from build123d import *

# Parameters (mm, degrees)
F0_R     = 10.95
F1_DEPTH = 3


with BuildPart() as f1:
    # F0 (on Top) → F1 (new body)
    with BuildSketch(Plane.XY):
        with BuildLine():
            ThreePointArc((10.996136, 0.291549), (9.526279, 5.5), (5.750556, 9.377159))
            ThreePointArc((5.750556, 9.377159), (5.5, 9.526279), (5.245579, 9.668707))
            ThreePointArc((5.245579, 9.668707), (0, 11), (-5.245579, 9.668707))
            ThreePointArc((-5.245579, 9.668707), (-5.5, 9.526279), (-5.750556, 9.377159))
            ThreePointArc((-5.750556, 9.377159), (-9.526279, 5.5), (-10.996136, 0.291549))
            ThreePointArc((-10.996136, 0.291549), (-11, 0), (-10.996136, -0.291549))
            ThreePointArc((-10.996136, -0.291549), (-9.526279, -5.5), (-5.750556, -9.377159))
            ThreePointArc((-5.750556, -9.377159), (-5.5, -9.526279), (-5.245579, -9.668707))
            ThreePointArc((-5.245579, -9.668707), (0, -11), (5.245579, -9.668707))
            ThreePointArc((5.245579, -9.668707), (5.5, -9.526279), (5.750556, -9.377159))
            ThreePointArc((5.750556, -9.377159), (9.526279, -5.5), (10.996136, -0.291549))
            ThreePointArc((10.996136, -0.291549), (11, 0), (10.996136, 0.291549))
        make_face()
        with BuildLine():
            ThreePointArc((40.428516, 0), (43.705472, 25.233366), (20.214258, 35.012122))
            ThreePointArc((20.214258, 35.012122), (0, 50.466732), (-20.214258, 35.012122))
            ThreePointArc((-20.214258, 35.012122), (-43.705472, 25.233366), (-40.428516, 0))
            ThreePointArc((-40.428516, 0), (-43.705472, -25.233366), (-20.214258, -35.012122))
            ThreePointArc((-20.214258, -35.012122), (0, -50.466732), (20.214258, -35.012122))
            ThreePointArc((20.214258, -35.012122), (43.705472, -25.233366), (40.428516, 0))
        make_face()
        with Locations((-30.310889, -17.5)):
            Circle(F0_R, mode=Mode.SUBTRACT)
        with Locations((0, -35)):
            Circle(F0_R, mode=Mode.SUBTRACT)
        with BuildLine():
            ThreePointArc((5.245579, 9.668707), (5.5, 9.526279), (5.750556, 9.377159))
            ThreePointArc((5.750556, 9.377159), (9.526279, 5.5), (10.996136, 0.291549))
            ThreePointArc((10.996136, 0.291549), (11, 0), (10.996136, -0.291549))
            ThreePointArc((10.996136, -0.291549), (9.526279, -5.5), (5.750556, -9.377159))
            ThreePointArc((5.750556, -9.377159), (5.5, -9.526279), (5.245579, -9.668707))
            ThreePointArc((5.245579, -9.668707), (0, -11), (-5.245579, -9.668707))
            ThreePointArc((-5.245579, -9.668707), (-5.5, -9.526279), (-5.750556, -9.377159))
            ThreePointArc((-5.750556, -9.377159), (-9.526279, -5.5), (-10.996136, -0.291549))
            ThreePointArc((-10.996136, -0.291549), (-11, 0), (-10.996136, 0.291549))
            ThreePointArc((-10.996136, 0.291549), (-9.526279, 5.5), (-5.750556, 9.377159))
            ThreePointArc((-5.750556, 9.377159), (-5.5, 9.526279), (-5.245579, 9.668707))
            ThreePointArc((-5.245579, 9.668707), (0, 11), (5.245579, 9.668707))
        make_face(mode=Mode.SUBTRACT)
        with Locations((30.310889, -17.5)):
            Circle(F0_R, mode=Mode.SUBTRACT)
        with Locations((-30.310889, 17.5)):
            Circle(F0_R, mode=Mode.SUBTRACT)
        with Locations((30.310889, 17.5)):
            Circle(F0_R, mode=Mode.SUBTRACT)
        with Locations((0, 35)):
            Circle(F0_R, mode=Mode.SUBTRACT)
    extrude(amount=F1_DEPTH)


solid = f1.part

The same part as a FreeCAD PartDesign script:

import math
import FreeCAD as App
import Part
import Sketcher

doc = App.newDocument("Part")
body = doc.addObject("PartDesign::Body", "Body")

# Sketch on XY plane
sketch1 = body.newObject("Sketcher::SketchObject", "Sketch")
sketch1.AttachmentSupport = (doc.getObject("XY_Plane"), [""])
sketch1.MapMode = "FlatFace"
sketch1.addGeometry(Part.ArcOfCircle(Part.Circle(App.Vector(25.564676, 14.759773, 0), App.Vector(0, 0, 1), 20.947187), math.radians(-44.798722), math.radians(104.798722)), False)
sketch1.addGeometry(Part.ArcOfCircle(Part.Circle(App.Vector(0, 29.519545, 0), App.Vector(0, 0, 1), 20.947187), math.radians(15.201278), math.radians(164.798722)), False)
sketch1.addGeometry(Part.ArcOfCircle(Part.Circle(App.Vector(-25.564676, 14.759773, 0), App.Vector(0, 0, 1), 20.947187), math.radians(75.201278), math.radians(224.798722)), False)
sketch1.addGeometry(Part.ArcOfCircle(Part.Circle(App.Vector(-25.564676, -14.759773, 0), App.Vector(0, 0, 1), 20.947187), math.radians(135.201278), math.radians(284.798722)), False)
sketch1.addGeometry(Part.ArcOfCircle(Part.Circle(App.Vector(0, -29.519545, 0), App.Vector(0, 0, 1), 20.947187), math.radians(-164.798722), math.radians(-15.201278)), False)
sketch1.addGeometry(Part.ArcOfCircle(Part.Circle(App.Vector(25.564676, -14.759773, 0), App.Vector(0, 0, 1), 20.947187), math.radians(-104.798722), math.radians(44.798722)), False)
sketch1.addGeometry(Part.Circle(App.Vector(-30.310889, -17.5, 0), App.Vector(0, 0, 1), 10.95), False)
sketch1.addGeometry(Part.Circle(App.Vector(0, -35, 0), App.Vector(0, 0, 1), 10.95), False)
sketch1.addGeometry(Part.ArcOfCircle(Part.Circle(App.Vector(0, 0.000002, 0), App.Vector(0, 0, 1), 10.999998), math.radians(61.518765), math.radians(118.481235)), False)
sketch1.addGeometry(Part.ArcOfCircle(Part.Circle(App.Vector(-0.000514, -0.000909, 0), App.Vector(0, 0, 1), 11.001044), math.radians(58.481427), math.radians(61.518676)), False)
sketch1.addGeometry(Part.ArcOfCircle(Part.Circle(App.Vector(-0.000005, -0.000003, 0), App.Vector(0, 0, 1), 11.000005), math.radians(1.518786), math.radians(58.48122)), False)
sketch1.addGeometry(Part.ArcOfCircle(Part.Circle(App.Vector(-0.001003, 0, 0), App.Vector(0, 0, 1), 11.001003), math.radians(-1.518633), math.radians(1.518633)), False)
sketch1.addGeometry(Part.ArcOfCircle(Part.Circle(App.Vector(-0.000005, 0.000003, 0), App.Vector(0, 0, 1), 11.000005), math.radians(-58.48122), math.radians(-1.518786)), False)
sketch1.addGeometry(Part.ArcOfCircle(Part.Circle(App.Vector(-0.000514, 0.000909, 0), App.Vector(0, 0, 1), 11.001044), math.radians(-61.518676), math.radians(-58.481427)), False)
sketch1.addGeometry(Part.ArcOfCircle(Part.Circle(App.Vector(0, -0.000002, 0), App.Vector(0, 0, 1), 10.999998), math.radians(-118.481235), math.radians(-61.518765)), False)
sketch1.addGeometry(Part.ArcOfCircle(Part.Circle(App.Vector(0.000514, 0.000909, 0), App.Vector(0, 0, 1), 11.001044), math.radians(-121.518573), math.radians(-118.481324)), False)
sketch1.addGeometry(Part.ArcOfCircle(Part.Circle(App.Vector(0.000005, 0.000003, 0), App.Vector(0, 0, 1), 11.000005), math.radians(-178.481214), math.radians(-121.51878)), False)
sketch1.addGeometry(Part.ArcOfCircle(Part.Circle(App.Vector(0.001003, 0, 0), App.Vector(0, 0, 1), 11.001003), math.radians(178.481367), math.radians(181.518633)), False)
sketch1.addGeometry(Part.ArcOfCircle(Part.Circle(App.Vector(0.000005, -0.000003, 0), App.Vector(0, 0, 1), 11.000005), math.radians(121.51878), math.radians(178.481214)), False)
sketch1.addGeometry(Part.ArcOfCircle(Part.Circle(App.Vector(0.000514, -0.000909, 0), App.Vector(0, 0, 1), 11.001044), math.radians(118.481324), math.radians(121.518573)), False)
sketch1.addGeometry(Part.Circle(App.Vector(30.310889, -17.5, 0), App.Vector(0, 0, 1), 10.95), False)
sketch1.addGeometry(Part.Circle(App.Vector(-30.310889, 17.5, 0), App.Vector(0, 0, 1), 10.95), False)
sketch1.addGeometry(Part.Circle(App.Vector(30.310889, 17.5, 0), App.Vector(0, 0, 1), 10.95), False)
sketch1.addGeometry(Part.Circle(App.Vector(0, 35, 0), App.Vector(0, 0, 1), 10.95), False)
sketch1.addConstraint(Sketcher.Constraint("Coincident", 0, 2, 1, 1))
sketch1.addConstraint(Sketcher.Constraint("Coincident", 1, 2, 2, 1))
sketch1.addConstraint(Sketcher.Constraint("Coincident", 2, 2, 3, 1))
sketch1.addConstraint(Sketcher.Constraint("Coincident", 3, 2, 4, 1))
sketch1.addConstraint(Sketcher.Constraint("Coincident", 4, 2, 5, 1))
sketch1.addConstraint(Sketcher.Constraint("Coincident", 5, 2, 0, 1))
sketch1.addConstraint(Sketcher.Constraint("Tangent", 8, 1, 9, 2))
sketch1.addConstraint(Sketcher.Constraint("Coincident", 9, 1, 10, 2))
sketch1.addConstraint(Sketcher.Constraint("Coincident", 10, 1, 11, 2))
sketch1.addConstraint(Sketcher.Constraint("Coincident", 11, 1, 12, 2))
sketch1.addConstraint(Sketcher.Constraint("Coincident", 12, 1, 13, 2))
sketch1.addConstraint(Sketcher.Constraint("Tangent", 13, 1, 14, 2))
sketch1.addConstraint(Sketcher.Constraint("Tangent", 14, 1, 15, 2))
sketch1.addConstraint(Sketcher.Constraint("Coincident", 15, 1, 16, 2))
sketch1.addConstraint(Sketcher.Constraint("Coincident", 16, 1, 17, 2))
sketch1.addConstraint(Sketcher.Constraint("Coincident", 17, 1, 18, 2))
sketch1.addConstraint(Sketcher.Constraint("Coincident", 18, 1, 19, 2))
sketch1.addConstraint(Sketcher.Constraint("Tangent", 19, 1, 8, 2))
sketch1.addConstraint(Sketcher.Constraint("Coincident", 8, 3, -1, 1))
sketch1.addConstraint(Sketcher.Constraint("Coincident", 10, 3, -1, 1))
sketch1.addConstraint(Sketcher.Constraint("Coincident", 12, 3, -1, 1))
sketch1.addConstraint(Sketcher.Constraint("Coincident", 14, 3, -1, 1))
sketch1.addConstraint(Sketcher.Constraint("Coincident", 16, 3, -1, 1))
sketch1.addConstraint(Sketcher.Constraint("Coincident", 18, 3, -1, 1))
sketch1.addConstraint(Sketcher.Constraint("Equal", 0, 1))
sketch1.addConstraint(Sketcher.Constraint("Equal", 1, 2))
sketch1.addConstraint(Sketcher.Constraint("Equal", 2, 3))
sketch1.addConstraint(Sketcher.Constraint("Equal", 3, 4))
sketch1.addConstraint(Sketcher.Constraint("Equal", 4, 5))
sketch1.addConstraint(Sketcher.Constraint("Equal", 6, 7))
sketch1.addConstraint(Sketcher.Constraint("Equal", 10, 12))
sketch1.addConstraint(Sketcher.Constraint("Equal", 9, 13))
sketch1.addConstraint(Sketcher.Constraint("Equal", 13, 15))
sketch1.addConstraint(Sketcher.Constraint("Equal", 11, 17))
sketch1.addConstraint(Sketcher.Constraint("Equal", 15, 19))
sketch1.addConstraint(Sketcher.Constraint("Equal", 7, 20))
sketch1.addConstraint(Sketcher.Constraint("Equal", 20, 21))
sketch1.addConstraint(Sketcher.Constraint("Equal", 21, 22))
sketch1.addConstraint(Sketcher.Constraint("Equal", 22, 23))
sketch1.addConstraint(Sketcher.Constraint("Symmetric", 0, 3, 3, 3, -1, 1))
sketch1.addConstraint(Sketcher.Constraint("Symmetric", 1, 3, 4, 3, -1, 1))
sketch1.addConstraint(Sketcher.Constraint("Symmetric", 2, 3, 5, 3, -1, 1))
sketch1.addConstraint(Sketcher.Constraint("Symmetric", 20, 3, 21, 3, -1, 1))
sketch1.addConstraint(Sketcher.Constraint("Symmetric", 6, 3, 22, 3, -1, 1))
sketch1.addConstraint(Sketcher.Constraint("Symmetric", 7, 3, 23, 3, -1, 1))
sketch1.addConstraint(Sketcher.Constraint("Symmetric", 0, 3, 2, 3, -2))
sketch1.addConstraint(Sketcher.Constraint("Symmetric", 6, 3, 20, 3, -2))
sketch1.addConstraint(Sketcher.Constraint("PointOnObject", 1, 3, -2))
sketch1.addConstraint(Sketcher.Constraint("PointOnObject", 7, 3, -2))
sketch1.addConstraint(Sketcher.Constraint("Horizontal", 13, 1, 14, 1))
sketch1.addConstraint(Sketcher.Constraint("Horizontal", 12, 1, 15, 1))
sketch1.addConstraint(Sketcher.Constraint("Horizontal", 11, 1, 16, 1))
sketch1.addConstraint(Sketcher.Constraint("Horizontal", 10, 1, 17, 1))
sketch1.addConstraint(Sketcher.Constraint("Horizontal", 9, 1, 18, 1))
sketch1.addConstraint(Sketcher.Constraint("Horizontal", 8, 1, 19, 1))
sketch1.addConstraint(Sketcher.Constraint("Vertical", 10, 1, 11, 1))
sketch1.addConstraint(Sketcher.Constraint("Vertical", 9, 1, 12, 1))
sketch1.addConstraint(Sketcher.Constraint("Vertical", 8, 1, 13, 1))
sketch1.addConstraint(Sketcher.Constraint("Diameter", 6, 21.9))
sketch1.addConstraint(Sketcher.Constraint("DistanceY", 7, 3, -1, 1, 35.0))
sketch1.addConstraint(Sketcher.Constraint("DistanceY", 6, 3, -1, 1, 17.5))
sketch1.addConstraint(Sketcher.Constraint("Radius", 0, 20.947187))
sketch1.addConstraint(Sketcher.Constraint("Radius", 8, 10.999998))
sketch1.addConstraint(Sketcher.Constraint("Radius", 9, 11.001044))
sketch1.addConstraint(Sketcher.Constraint("Radius", 11, 11.001003))
sketch1.addConstraint(Sketcher.Constraint("DistanceX", 6, 3, -1, 1, 30.310889))
sketch1.addConstraint(Sketcher.Constraint("DistanceX", -1, 1, 0, 2, 20.214258))
sketch1.addConstraint(Sketcher.Constraint("DistanceY", -1, 1, 0, 2, 35.012122))
sketch1.addConstraint(Sketcher.Constraint("DistanceX", -1, 1, 8, 1, 5.245579))
sketch1.addConstraint(Sketcher.Constraint("DistanceY", -1, 1, 9, 1, 9.377159))
sketch1.addConstraint(Sketcher.Constraint("DistanceY", -1, 1, 10, 1, 0.291549))
sketch1.addConstraint(Sketcher.Constraint("DistanceY", 3, 3, 1, 3, 44.279318))
pad1 = body.newObject("PartDesign::Pad", "Pad")
pad1.Profile = sketch1
pad1.Length = 3

doc.recompute()
